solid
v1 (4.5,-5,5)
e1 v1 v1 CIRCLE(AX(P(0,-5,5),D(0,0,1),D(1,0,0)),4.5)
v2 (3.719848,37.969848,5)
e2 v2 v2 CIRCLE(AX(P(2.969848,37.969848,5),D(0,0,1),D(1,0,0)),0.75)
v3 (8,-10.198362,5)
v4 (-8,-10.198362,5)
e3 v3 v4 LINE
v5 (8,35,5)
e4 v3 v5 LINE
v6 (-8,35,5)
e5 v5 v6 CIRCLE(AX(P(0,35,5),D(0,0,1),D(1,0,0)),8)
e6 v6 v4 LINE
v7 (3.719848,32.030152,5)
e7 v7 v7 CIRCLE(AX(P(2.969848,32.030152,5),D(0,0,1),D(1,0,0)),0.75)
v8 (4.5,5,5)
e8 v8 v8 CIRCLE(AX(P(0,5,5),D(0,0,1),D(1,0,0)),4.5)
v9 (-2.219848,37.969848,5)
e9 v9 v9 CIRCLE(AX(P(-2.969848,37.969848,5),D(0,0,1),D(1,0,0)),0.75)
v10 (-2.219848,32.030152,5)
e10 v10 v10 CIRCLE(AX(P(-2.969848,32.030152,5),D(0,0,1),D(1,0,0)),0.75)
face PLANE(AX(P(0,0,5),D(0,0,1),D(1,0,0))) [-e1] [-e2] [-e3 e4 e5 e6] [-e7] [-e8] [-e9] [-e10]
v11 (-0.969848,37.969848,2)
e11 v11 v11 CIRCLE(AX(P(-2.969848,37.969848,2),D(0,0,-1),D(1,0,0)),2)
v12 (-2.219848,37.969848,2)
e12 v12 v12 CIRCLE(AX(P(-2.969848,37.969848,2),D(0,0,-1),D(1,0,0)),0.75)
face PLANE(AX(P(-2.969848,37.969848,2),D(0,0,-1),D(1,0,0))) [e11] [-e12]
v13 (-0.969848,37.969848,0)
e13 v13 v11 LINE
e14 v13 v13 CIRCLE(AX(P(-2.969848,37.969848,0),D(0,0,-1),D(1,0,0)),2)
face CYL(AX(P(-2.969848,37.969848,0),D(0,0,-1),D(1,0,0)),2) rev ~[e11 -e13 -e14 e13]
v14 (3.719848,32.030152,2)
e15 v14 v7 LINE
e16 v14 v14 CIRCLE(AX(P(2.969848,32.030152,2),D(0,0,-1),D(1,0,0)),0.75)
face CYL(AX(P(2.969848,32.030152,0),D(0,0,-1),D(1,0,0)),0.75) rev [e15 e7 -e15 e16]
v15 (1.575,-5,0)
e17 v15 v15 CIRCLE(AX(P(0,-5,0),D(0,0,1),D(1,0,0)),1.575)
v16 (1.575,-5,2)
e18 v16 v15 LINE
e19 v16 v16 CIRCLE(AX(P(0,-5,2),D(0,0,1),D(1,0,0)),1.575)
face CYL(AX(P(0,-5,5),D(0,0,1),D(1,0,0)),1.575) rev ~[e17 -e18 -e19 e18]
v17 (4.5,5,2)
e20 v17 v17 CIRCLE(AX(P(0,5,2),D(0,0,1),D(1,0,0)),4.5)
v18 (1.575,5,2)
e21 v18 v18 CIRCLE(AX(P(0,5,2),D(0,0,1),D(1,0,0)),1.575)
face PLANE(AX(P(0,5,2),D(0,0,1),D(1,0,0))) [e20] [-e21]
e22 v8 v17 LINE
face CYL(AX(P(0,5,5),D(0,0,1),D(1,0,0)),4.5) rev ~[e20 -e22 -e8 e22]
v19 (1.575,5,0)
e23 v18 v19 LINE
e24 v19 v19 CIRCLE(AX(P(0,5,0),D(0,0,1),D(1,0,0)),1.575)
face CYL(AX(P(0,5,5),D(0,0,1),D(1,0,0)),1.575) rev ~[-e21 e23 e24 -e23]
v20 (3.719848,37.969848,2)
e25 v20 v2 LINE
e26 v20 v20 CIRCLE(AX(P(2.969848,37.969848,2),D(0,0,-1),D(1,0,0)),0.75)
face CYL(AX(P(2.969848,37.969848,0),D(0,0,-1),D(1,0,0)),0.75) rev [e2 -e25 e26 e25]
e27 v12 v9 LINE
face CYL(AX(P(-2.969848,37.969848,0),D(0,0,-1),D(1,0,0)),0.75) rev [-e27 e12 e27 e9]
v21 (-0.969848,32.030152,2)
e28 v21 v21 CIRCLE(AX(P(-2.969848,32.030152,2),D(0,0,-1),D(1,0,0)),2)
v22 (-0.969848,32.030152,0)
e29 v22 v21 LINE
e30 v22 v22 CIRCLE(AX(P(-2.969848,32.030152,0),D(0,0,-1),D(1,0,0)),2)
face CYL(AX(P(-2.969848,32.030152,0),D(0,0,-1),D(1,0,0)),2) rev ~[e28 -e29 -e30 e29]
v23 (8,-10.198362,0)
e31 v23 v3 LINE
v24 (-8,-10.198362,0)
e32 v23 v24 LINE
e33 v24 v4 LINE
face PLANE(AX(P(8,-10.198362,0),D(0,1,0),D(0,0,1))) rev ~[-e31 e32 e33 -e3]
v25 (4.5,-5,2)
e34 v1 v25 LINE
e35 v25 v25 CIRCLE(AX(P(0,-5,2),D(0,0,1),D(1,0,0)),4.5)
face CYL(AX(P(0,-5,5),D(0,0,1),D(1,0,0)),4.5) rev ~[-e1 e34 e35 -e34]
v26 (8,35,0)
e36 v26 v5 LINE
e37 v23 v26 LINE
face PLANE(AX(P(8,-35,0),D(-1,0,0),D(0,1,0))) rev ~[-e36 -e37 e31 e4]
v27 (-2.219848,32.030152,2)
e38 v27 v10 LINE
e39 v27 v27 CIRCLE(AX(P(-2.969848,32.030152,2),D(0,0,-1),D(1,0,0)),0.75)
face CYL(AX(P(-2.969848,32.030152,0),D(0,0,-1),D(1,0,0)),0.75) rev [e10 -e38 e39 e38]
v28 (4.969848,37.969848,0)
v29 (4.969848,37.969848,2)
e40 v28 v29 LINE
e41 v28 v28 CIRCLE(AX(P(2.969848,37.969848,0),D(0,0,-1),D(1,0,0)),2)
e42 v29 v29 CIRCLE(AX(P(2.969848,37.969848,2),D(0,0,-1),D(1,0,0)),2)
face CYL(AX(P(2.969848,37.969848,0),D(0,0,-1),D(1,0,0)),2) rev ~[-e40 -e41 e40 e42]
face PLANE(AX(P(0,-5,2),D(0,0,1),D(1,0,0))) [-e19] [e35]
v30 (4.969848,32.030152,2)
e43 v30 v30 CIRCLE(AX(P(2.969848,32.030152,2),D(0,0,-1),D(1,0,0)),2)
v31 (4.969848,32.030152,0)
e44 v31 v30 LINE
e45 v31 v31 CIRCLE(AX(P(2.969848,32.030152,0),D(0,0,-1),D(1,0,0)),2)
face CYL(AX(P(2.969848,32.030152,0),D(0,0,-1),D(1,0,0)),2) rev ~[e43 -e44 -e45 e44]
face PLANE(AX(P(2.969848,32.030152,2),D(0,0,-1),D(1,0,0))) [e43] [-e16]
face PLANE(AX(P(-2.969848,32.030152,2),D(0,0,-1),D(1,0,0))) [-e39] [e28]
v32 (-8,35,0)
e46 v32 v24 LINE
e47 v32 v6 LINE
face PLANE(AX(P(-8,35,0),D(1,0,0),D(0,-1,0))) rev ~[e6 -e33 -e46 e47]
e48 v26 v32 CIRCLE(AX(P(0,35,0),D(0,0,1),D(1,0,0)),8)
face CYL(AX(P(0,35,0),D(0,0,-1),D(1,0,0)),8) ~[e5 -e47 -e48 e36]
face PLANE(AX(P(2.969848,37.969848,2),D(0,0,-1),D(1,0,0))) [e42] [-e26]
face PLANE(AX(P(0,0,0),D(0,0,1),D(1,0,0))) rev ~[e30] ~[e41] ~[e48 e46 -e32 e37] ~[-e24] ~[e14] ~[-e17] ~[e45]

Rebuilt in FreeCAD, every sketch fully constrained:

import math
import FreeCAD as App
import Part
import Sketcher

V = App.Vector
Q = App.Units.Quantity


def add_polygon(sketch, points):
    """Adds a closed chain of lines whose ends are joined by coincident constraints."""
    first, n = sketch.GeometryCount, len(points)
    for a, b in zip(points, points[1:] + points[:1]):
        sketch.addGeometry(Part.LineSegment(App.Vector(*a, 0), App.Vector(*b, 0)), False)
    for i in range(n):
        sketch.addConstraint(Sketcher.Constraint("Coincident", first + i, 2, first + (i + 1) % n, 1))

doc = App.newDocument("Part")
params = doc.addObject("Spreadsheet::Sheet", "Params")
for row, (alias, value) in enumerate([
    ("sketch1_radius", "8 mm"),
    ("sketch1_diameter", "1.5 mm"),
    ("sketch1_height", "70 mm"),
    ("pad1_length", "5 mm"),
    ("sketch2_diameter", "3.15 mm"),
    ("sketch3_diameter", "9 mm"),
    ("pocket2_length", "3 mm"),
    ("sketch4_diameter", "4 mm"),
    ("pocket3_length", "2 mm"),
], start=1):
    params.set(f"A{row}", alias)
    params.set(f"B{row}", "=" + value)
    params.setAlias(f"B{row}", alias)

body = doc.addObject("PartDesign::Body", "Body")

sketch1 = doc.addObject("Sketcher::SketchObject", "Sketch")
body.addObject(sketch1)
sketch1.AttachmentSupport = (doc.XY_Plane, [""])
sketch1.MapMode = "FlatFace"
sketch1.addGeometry(Part.LineSegment(V(-8, 35, 0), V(-8, -35, 0)), False)
sketch1.addGeometry(Part.ArcOfCircle(Part.Circle(V(0, -35, 0), V(0, 0, 1), 8), math.radians(180), math.radians(360)), False)
sketch1.addGeometry(Part.LineSegment(V(8, -35, 0), V(8, 35, 0)), False)
sketch1.addGeometry(Part.ArcOfCircle(Part.Circle(V(0, 35, 0), V(0, 0, 1), 8), math.radians(0), math.radians(180)), False)
sketch1.addGeometry(Part.Circle(V(-3, -38, 0), V(0, 0, 1), 0.8), False)
sketch1.addGeometry(Part.Circle(V(-3, -32, 0), V(0, 0, 1), 0.8), False)
sketch1.addGeometry(Part.Circle(V(3, -38, 0), V(0, 0, 1), 0.8), False)
sketch1.addGeometry(Part.Circle(V(3, -32, 0), V(0, 0, 1), 0.8), False)
sketch1.addGeometry(Part.Circle(V(-3, 32, 0), V(0, 0, 1), 0.8), False)
sketch1.addGeometry(Part.Circle(V(-3, 38, 0), V(0, 0, 1), 0.8), False)
sketch1.addGeometry(Part.Circle(V(3, 32, 0), V(0, 0, 1), 0.8), False)
sketch1.addGeometry(Part.Circle(V(3, 38, 0), V(0, 0, 1), 0.8), False)
sketch1.addConstraint(Sketcher.Constraint("Tangent", 0, 2, 1, 1))
sketch1.addConstraint(Sketcher.Constraint("Tangent", 1, 2, 2, 1))
sketch1.addConstraint(Sketcher.Constraint("Tangent", 2, 2, 3, 1))
sketch1.addConstraint(Sketcher.Constraint("Tangent", 3, 2, 0, 1))
sketch1.addConstraint(Sketcher.Constraint("Vertical", 0))
sketch1.addConstraint(Sketcher.Constraint("Vertical", 2))
sketch1.addConstraint(Sketcher.Constraint("Equal", 4, 5))
sketch1.addConstraint(Sketcher.Constraint("Equal", 5, 6))
sketch1.addConstraint(Sketcher.Constraint("Equal", 6, 7))
sketch1.addConstraint(Sketcher.Constraint("Equal", 7, 8))
sketch1.addConstraint(Sketcher.Constraint("Equal", 8, 9))
sketch1.addConstraint(Sketcher.Constraint("Equal", 9, 10))
sketch1.addConstraint(Sketcher.Constraint("Equal", 10, 11))
sketch1.addConstraint(Sketcher.Constraint("Symmetric", 1, 3, 3, 3, -1, 1))
sketch1.addConstraint(Sketcher.Constraint("Symmetric", 7, 3, 8, 3, -1, 1))
sketch1.addConstraint(Sketcher.Constraint("Symmetric", 6, 3, 9, 3, -1, 1))
sketch1.addConstraint(Sketcher.Constraint("Symmetric", 5, 3, 10, 3, -1, 1))
sketch1.addConstraint(Sketcher.Constraint("Symmetric", 4, 3, 11, 3, -1, 1))
sketch1.addConstraint(Sketcher.Constraint("Symmetric", 4, 3, 6, 3, -2))
sketch1.addConstraint(Sketcher.Constraint("Symmetric", 5, 3, 7, 3, -2))
sketch1.addConstraint(Sketcher.Constraint("Vertical", 4, 3, 5, 3))
sketch1.addConstraint(Sketcher.Constraint("Radius", 1, Q("8 mm")))
sketch1.addConstraint(Sketcher.Constraint("Diameter", 4, Q("1.5 mm")))
sketch1.addConstraint(Sketcher.Constraint("DistanceY", 0, 2, 0, 1, Q("70 mm")))
sketch1.addConstraint(Sketcher.Constraint("DistanceY", 4, 3, 8, 3, Q("70 mm")))
sketch1.addConstraint(Sketcher.Constraint("DistanceY", 4, 3, 3, 3, Q("72.969848 mm")))
sketch1.addConstraint(Sketcher.Constraint("DistanceX", 4, 3, -1, 1, Q("2.969848 mm")))
sketch1.setExpression("Constraints[21]", "Params.sketch1_radius")
sketch1.setExpression("Constraints[22]", "Params.sketch1_diameter")
sketch1.setExpression("Constraints[23]", "Params.sketch1_height")
pad1 = doc.addObject("PartDesign::Pad", "Pad")
body.addObject(pad1)
pad1.Profile = sketch1
pad1.setExpression("Length", "Params.pad1_length")

sketch2 = doc.addObject("Sketcher::SketchObject", "Sketch001")
body.addObject(sketch2)
sketch2.AttachmentSupport = (doc.XY_Plane, [""])
sketch2.MapMode = "FlatFace"
sketch2.AttachmentOffset = App.Placement(V(0, 0, 5), App.Rotation())
sketch2.addGeometry(Part.Circle(V(0, 5, 0), V(0, 0, 1), 1.6), False)
sketch2.addGeometry(Part.Circle(V(0, -5, 0), V(0, 0, 1), 1.6), False)
sketch2.addConstraint(Sketcher.Constraint("Equal", 0, 1))
sketch2.addConstraint(Sketcher.Constraint("Symmetric", 0, 3, 1, 3, -1, 1))
sketch2.addConstraint(Sketcher.Constraint("PointOnObject", 0, 3, -2))
sketch2.addConstraint(Sketcher.Constraint("Diameter", 0, Q("3.15 mm")))
sketch2.addConstraint(Sketcher.Constraint("DistanceY", -1, 1, 0, 3, Q("5 mm")))
sketch2.setExpression("Constraints[3]", "Params.sketch2_diameter")
pocket1 = doc.addObject("PartDesign::Pocket", "Pocket")
body.addObject(pocket1)
pocket1.Profile = sketch2
pocket1.Type = "ThroughAll"

sketch3 = doc.addObject("Sketcher::SketchObject", "Sketch002")
body.addObject(sketch3)
sketch3.AttachmentSupport = (doc.XY_Plane, [""])
sketch3.MapMode = "FlatFace"
sketch3.AttachmentOffset = App.Placement(V(0, 0, 5), App.Rotation())
sketch3.addGeometry(Part.Circle(V(0, 5, 0), V(0, 0, 1), 4.5), False)
sketch3.addGeometry(Part.Circle(V(0, -5, 0), V(0, 0, 1), 4.5), False)
sketch3.addConstraint(Sketcher.Constraint("Equal", 0, 1))
sketch3.addConstraint(Sketcher.Constraint("Symmetric", 0, 3, 1, 3, -1, 1))
sketch3.addConstraint(Sketcher.Constraint("PointOnObject", 0, 3, -2))
sketch3.addConstraint(Sketcher.Constraint("Diameter", 0, Q("9 mm")))
sketch3.addConstraint(Sketcher.Constraint("DistanceY", -1, 1, 0, 3, Q("5 mm")))
sketch3.setExpression("Constraints[3]", "Params.sketch3_diameter")
pocket2 = doc.addObject("PartDesign::Pocket", "Pocket001")
body.addObject(pocket2)
pocket2.Profile = sketch3
pocket2.setExpression("Length", "Params.pocket2_length")

sketch4 = doc.addObject("Sketcher::SketchObject", "Sketch003")
body.addObject(sketch4)
sketch4.AttachmentSupport = (doc.XY_Plane, [""])
sketch4.MapMode = "FlatFace"
sketch4.addGeometry(Part.Circle(V(-3, -38, 0), V(0, 0, 1), 2), False)
sketch4.addGeometry(Part.Circle(V(3, -38, 0), V(0, 0, 1), 2), False)
sketch4.addGeometry(Part.Circle(V(3, -32, 0), V(0, 0, 1), 2), False)
sketch4.addGeometry(Part.Circle(V(-3, -32, 0), V(0, 0, 1), 2), False)
sketch4.addGeometry(Part.Circle(V(-3, 32, 0), V(0, 0, 1), 2), False)
sketch4.addGeometry(Part.Circle(V(-3, 38, 0), V(0, 0, 1), 2), False)
sketch4.addGeometry(Part.Circle(V(3, 38, 0), V(0, 0, 1), 2), False)
sketch4.addGeometry(Part.Circle(V(3, 32, 0), V(0, 0, 1), 2), False)
sketch4.addConstraint(Sketcher.Constraint("Equal", 0, 1))
sketch4.addConstraint(Sketcher.Constraint("Equal", 1, 2))
sketch4.addConstraint(Sketcher.Constraint("Equal", 2, 3))
sketch4.addConstraint(Sketcher.Constraint("Equal", 3, 4))
sketch4.addConstraint(Sketcher.Constraint("Equal", 4, 5))
sketch4.addConstraint(Sketcher.Constraint("Equal", 5, 6))
sketch4.addConstraint(Sketcher.Constraint("Equal", 6, 7))
sketch4.addConstraint(Sketcher.Constraint("Symmetric", 2, 3, 4, 3, -1, 1))
sketch4.addConstraint(Sketcher.Constraint("Symmetric", 1, 3, 5, 3, -1, 1))
sketch4.addConstraint(Sketcher.Constraint("Symmetric", 0, 3, 6, 3, -1, 1))
sketch4.addConstraint(Sketcher.Constraint("Symmetric", 3, 3, 7, 3, -1, 1))
sketch4.addConstraint(Sketcher.Constraint("Symmetric", 0, 3, 1, 3, -2))
sketch4.addConstraint(Sketcher.Constraint("Symmetric", 2, 3, 3, 3, -2))
sketch4.addConstraint(Sketcher.Constraint("Vertical", 1, 3, 2, 3))
sketch4.addConstraint(Sketcher.Constraint("Diameter", 0, Q("4 mm")))
sketch4.addConstraint(Sketcher.Constraint("DistanceY", 0, 3, 4, 3, Q("70 mm")))
sketch4.addConstraint(Sketcher.Constraint("DistanceX", 0, 3, -1, 1, Q("2.969848 mm")))
sketch4.addConstraint(Sketcher.Constraint("DistanceY", 0, 3, -1, 1, Q("37.969848 mm")))
sketch4.setExpression("Constraints[14]", "Params.sketch4_diameter")
pocket3 = doc.addObject("PartDesign::Pocket", "Pocket002")
body.addObject(pocket3)
pocket3.Profile = sketch4
pocket3.setExpression("Length", "Params.pocket3_length")
pocket3.Reversed = True

sketch5 = doc.addObject("Sketcher::SketchObject", "Sketch004")
body.addObject(sketch5)
sketch5.AttachmentSupport = (doc.YZ_Plane, [""])
sketch5.MapMode = "FlatFace"
sketch5.AttachmentOffset = App.Placement(V(0, 0, 8), App.Rotation())
add_polygon(sketch5, [(-53, 8), (-53, 0), (-10, 0), (-10, 8)])
sketch5.addConstraint(Sketcher.Constraint("Vertical", 0))
sketch5.addConstraint(Sketcher.Constraint("Horizontal", 1))
sketch5.addConstraint(Sketcher.Constraint("Vertical", 2))
sketch5.addConstraint(Sketcher.Constraint("Horizontal", 3))
sketch5.addConstraint(Sketcher.Constraint("PointOnObject", 0, 2, -1))
sketch5.addConstraint(Sketcher.Constraint("DistanceY", 0, 2, 0, 1, Q("7.897038 mm")))
sketch5.addConstraint(Sketcher.Constraint("DistanceX", 1, 1, 1, 2, Q("43.103866 mm")))
sketch5.addConstraint(Sketcher.Constraint("DistanceX", 0, 2, -1, 1, Q("53.302228 mm")))
pocket4 = doc.addObject("PartDesign::Pocket", "Pocket003")
body.addObject(pocket4)
pocket4.Profile = sketch5
pocket4.Type = "ThroughAll"

doc.recompute()
